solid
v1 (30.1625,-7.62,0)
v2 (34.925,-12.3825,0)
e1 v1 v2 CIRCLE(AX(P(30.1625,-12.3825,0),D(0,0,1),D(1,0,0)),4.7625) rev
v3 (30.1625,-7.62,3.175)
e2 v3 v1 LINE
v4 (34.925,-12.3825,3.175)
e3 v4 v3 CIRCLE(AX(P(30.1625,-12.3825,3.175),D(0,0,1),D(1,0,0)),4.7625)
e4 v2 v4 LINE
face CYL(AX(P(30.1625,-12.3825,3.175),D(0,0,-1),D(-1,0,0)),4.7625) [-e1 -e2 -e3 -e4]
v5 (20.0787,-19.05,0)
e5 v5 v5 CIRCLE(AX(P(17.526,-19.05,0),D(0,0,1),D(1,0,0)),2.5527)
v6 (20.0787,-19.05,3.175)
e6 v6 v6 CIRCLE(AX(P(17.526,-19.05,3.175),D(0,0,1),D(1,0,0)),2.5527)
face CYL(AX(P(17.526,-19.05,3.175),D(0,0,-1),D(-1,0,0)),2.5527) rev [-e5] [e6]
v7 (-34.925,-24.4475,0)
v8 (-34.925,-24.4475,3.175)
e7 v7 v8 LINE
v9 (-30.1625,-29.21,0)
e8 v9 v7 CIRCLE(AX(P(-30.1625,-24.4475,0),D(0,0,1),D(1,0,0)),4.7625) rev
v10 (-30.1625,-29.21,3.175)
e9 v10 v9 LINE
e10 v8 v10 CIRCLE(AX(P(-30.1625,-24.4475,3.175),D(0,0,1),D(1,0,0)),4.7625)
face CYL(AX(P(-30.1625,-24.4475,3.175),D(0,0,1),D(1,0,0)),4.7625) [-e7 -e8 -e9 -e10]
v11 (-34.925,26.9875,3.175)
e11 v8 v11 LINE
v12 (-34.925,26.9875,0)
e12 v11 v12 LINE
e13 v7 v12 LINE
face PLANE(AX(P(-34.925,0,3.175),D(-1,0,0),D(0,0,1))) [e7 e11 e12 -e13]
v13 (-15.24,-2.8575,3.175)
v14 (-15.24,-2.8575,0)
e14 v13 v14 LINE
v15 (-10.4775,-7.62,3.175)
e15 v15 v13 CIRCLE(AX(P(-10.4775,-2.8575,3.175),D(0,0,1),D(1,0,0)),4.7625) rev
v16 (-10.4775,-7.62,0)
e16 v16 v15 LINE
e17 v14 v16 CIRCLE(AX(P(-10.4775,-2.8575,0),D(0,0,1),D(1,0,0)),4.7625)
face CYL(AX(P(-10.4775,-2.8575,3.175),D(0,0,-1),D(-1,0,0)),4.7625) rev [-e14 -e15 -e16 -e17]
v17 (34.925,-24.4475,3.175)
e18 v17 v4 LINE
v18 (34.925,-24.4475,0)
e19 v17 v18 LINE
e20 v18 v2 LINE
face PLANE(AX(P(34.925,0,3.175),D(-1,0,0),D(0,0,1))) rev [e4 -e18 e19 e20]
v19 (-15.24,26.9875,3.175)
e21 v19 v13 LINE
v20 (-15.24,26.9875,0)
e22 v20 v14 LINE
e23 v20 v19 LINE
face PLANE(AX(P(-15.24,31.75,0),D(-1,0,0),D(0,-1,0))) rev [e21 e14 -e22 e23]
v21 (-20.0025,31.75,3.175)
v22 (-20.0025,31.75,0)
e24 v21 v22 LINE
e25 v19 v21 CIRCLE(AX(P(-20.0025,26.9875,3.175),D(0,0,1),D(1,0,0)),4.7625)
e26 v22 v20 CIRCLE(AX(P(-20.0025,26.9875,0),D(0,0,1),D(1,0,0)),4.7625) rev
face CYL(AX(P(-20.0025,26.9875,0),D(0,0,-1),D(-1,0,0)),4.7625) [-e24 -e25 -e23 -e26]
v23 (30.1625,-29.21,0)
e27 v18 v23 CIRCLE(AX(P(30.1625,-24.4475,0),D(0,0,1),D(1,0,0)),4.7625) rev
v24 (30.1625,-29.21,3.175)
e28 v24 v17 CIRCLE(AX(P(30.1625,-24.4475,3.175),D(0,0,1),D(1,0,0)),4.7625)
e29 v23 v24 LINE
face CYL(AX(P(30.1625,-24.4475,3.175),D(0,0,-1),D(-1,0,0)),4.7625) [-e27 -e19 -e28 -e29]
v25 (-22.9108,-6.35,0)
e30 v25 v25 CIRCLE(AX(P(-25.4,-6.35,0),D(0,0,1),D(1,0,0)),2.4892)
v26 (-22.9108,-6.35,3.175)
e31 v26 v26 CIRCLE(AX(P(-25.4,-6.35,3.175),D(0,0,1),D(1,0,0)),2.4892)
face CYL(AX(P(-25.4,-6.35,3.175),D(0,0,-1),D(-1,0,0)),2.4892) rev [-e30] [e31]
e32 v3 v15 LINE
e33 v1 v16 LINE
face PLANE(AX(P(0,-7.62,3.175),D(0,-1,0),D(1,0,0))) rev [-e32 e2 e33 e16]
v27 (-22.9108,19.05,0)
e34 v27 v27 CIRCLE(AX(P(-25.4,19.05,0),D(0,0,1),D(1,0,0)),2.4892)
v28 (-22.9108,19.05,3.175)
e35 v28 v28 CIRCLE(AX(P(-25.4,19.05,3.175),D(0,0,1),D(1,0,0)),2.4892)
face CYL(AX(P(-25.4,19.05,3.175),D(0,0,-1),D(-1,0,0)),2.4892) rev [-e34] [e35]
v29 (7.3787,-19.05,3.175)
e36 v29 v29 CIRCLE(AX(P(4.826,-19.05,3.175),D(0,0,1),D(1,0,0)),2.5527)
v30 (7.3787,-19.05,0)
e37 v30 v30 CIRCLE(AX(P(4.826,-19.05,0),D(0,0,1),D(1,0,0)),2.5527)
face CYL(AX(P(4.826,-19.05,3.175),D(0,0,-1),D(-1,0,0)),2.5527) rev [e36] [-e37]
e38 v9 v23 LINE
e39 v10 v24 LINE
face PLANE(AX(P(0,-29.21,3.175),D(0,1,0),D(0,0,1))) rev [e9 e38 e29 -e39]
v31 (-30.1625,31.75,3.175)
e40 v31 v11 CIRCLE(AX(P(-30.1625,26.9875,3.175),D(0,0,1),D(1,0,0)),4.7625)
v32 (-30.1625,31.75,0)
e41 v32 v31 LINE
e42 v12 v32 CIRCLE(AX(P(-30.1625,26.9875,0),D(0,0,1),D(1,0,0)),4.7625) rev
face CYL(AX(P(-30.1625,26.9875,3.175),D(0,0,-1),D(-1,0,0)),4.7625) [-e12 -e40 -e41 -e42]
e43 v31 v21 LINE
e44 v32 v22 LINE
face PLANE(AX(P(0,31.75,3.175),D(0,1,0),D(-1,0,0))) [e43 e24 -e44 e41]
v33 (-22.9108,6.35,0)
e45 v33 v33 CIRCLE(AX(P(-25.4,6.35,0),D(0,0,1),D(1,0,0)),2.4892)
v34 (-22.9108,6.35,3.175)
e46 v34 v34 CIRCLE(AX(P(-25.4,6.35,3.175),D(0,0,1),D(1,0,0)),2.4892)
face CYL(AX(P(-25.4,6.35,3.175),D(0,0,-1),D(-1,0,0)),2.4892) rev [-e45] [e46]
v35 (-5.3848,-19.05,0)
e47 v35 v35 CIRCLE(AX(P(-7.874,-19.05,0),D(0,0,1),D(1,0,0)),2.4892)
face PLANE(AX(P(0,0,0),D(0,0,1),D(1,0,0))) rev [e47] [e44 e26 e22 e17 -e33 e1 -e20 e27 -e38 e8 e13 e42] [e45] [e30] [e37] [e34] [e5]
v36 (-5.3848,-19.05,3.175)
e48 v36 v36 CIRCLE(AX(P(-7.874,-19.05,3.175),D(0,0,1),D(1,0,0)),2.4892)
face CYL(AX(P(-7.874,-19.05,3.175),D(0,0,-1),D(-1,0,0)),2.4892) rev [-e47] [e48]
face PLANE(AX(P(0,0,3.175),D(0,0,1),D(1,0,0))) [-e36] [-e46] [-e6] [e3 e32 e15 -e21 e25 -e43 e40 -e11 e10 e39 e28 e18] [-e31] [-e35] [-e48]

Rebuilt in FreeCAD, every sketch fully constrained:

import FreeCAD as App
import Part
import Sketcher

V = App.Vector
Q = App.Units.Quantity


def edges_at(feature, points):
    """Names of the edges that pass closest to the given points."""
    edges = feature.Shape.Edges
    near = lambda p: min(range(len(edges)), key=lambda i: edges[i].distToShape(Part.Vertex(*p))[0])
    return sorted({f"Edge{near(p) + 1}" for p in points})

doc = App.newDocument("Part")
body = doc.addObject("PartDesign::Body", "Body")

# Sketch on XY plane
sketch1 = body.newObject("Sketcher::SketchObject", "Sketch")
sketch1.AttachmentSupport = (doc.getObject("XY_Plane"), [""])
sketch1.MapMode = "FlatFace"
sketch1.addGeometry(Part.LineSegment(V(-34.925, 31.75, 0), V(-34.925, -29.21, 0)), False)
sketch1.addGeometry(Part.LineSegment(V(-34.925, -29.21, 0), V(34.925, -29.21, 0)), False)
sketch1.addGeometry(Part.LineSegment(V(34.925, -29.21, 0), V(34.925, -7.62, 0)), False)
sketch1.addGeometry(Part.LineSegment(V(34.925, -7.62, 0), V(-10.795, -7.62, 0)), False)
sketch1.addGeometry(Part.LineSegment(V(-10.795, -7.62, 0), V(-10.795, 31.75, 0)), False)
sketch1.addGeometry(Part.LineSegment(V(-10.795, 31.75, 0), V(-34.925, 31.75, 0)), False)
sketch1.addGeometry(Part.Circle(V(-7.874, -19.05, 0), V(0, 0, 1), 2.4892), False)
sketch1.addGeometry(Part.Circle(V(-25.4, -6.35, 0), V(0, 0, 1), 2.4892), False)
sketch1.addGeometry(Part.Circle(V(4.826, -19.05, 0), V(0, 0, 1), 2.5527), False)
sketch1.addGeometry(Part.Circle(V(17.526, -19.05, 0), V(0, 0, 1), 2.5527), False)
sketch1.addGeometry(Part.Circle(V(-25.4, 6.35, 0), V(0, 0, 1), 2.4892), False)
sketch1.addGeometry(Part.Circle(V(-25.4, 19.05, 0), V(0, 0, 1), 2.4892), False)
sketch1.addConstraint(Sketcher.Constraint("Coincident", 0, 2, 1, 1))
sketch1.addConstraint(Sketcher.Constraint("Coincident", 1, 2, 2, 1))
sketch1.addConstraint(Sketcher.Constraint("Coincident", 2, 2, 3, 1))
sketch1.addConstraint(Sketcher.Constraint("Coincident", 3, 2, 4, 1))
sketch1.addConstraint(Sketcher.Constraint("Coincident", 4, 2, 5, 1))
sketch1.addConstraint(Sketcher.Constraint("Coincident", 5, 2, 0, 1))
sketch1.addConstraint(Sketcher.Constraint("Vertical", 0))
sketch1.addConstraint(Sketcher.Constraint("Horizontal", 1))
sketch1.addConstraint(Sketcher.Constraint("Vertical", 2))
sketch1.addConstraint(Sketcher.Constraint("Horizontal", 3))
sketch1.addConstraint(Sketcher.Constraint("Vertical", 4))
sketch1.addConstraint(Sketcher.Constraint("Horizontal", 5))
sketch1.addConstraint(Sketcher.Constraint("Equal", 6, 7))
sketch1.addConstraint(Sketcher.Constraint("Equal", 8, 9))
sketch1.addConstraint(Sketcher.Constraint("Equal", 7, 10))
sketch1.addConstraint(Sketcher.Constraint("Equal", 10, 11))
sketch1.addConstraint(Sketcher.Constraint("Symmetric", 7, 3, 10, 3, -1))
sketch1.addConstraint(Sketcher.Constraint("Horizontal", 6, 3, 8, 3))
sketch1.addConstraint(Sketcher.Constraint("Horizontal", 8, 3, 9, 3))
sketch1.addConstraint(Sketcher.Constraint("Vertical", 10, 3, 11, 3))
sketch1.addConstraint(Sketcher.Constraint("Diameter", 6, Q("0.196 in")))
sketch1.addConstraint(Sketcher.Constraint("Diameter", 8, Q("0.201 in")))
sketch1.addConstraint(Sketcher.Constraint("DistanceX", 3, 2, 3, 1, Q("1.8 in")))
sketch1.addConstraint(Sketcher.Constraint("DistanceY", 0, 2, 0, 1, Q("2.4 in")))
sketch1.addConstraint(Sketcher.Constraint("DistanceX", 7, 3, -1, 1, Q("1 in")))
sketch1.addConstraint(Sketcher.Constraint("DistanceX", 6, 3, 9, 3, Q("1 in")))
sketch1.addConstraint(Sketcher.Constraint("DistanceY", 6, 3, 10, 3, Q("1 in")))
sketch1.addConstraint(Sketcher.Constraint("DistanceY", 7, 3, 11, 3, Q("1 in")))
sketch1.addConstraint(Sketcher.Constraint("DistanceY", 10, 3, 4, 2, Q("1 in")))
sketch1.addConstraint(Sketcher.Constraint("DistanceX", 1, 1, 1, 2, Q("2.75 in")))
sketch1.addConstraint(Sketcher.Constraint("DistanceY", 2, 1, 2, 2, Q("0.85 in")))
sketch1.addConstraint(Sketcher.Constraint("DistanceY", 2, 2, -1, 1, Q("0.3 in")))
sketch1.addConstraint(Sketcher.Constraint("DistanceX", 6, 3, 8, 3, Q("0.5 in")))
sketch1.addConstraint(Sketcher.Constraint("DistanceX", 6, 3, -1, 1, Q("0.31 in")))
sketch1.addConstraint(Sketcher.Constraint("DistanceX", 0, 2, -1, 1, Q("1.375 in")))
pad1 = body.newObject("PartDesign::Pad", "Pad")
pad1.Profile = sketch1
pad1.Length = Q("0.125 in")

# Sketch on XY plane
sketch2 = body.newObject("Sketcher::SketchObject", "Sketch001")
sketch2.AttachmentSupport = (doc.getObject("XY_Plane"), [""])
sketch2.MapMode = "FlatFace"
sketch2.AttachmentOffset = App.Placement(V(0, 0, 0.125 * 25.4), App.Rotation())
sketch2.addGeometry(Part.LineSegment(V(-15.24, 31.75, 0), V(-15.24, -7.62, 0)), False)
sketch2.addGeometry(Part.LineSegment(V(-15.24, -7.62, 0), V(-10.795, -7.62, 0)), False)
sketch2.addGeometry(Part.LineSegment(V(-10.795, -7.62, 0), V(-10.795, 31.75, 0)), False)
sketch2.addGeometry(Part.LineSegment(V(-10.795, 31.75, 0), V(-15.24, 31.75, 0)), False)
sketch2.addConstraint(Sketcher.Constraint("Coincident", 0, 2, 1, 1))
sketch2.addConstraint(Sketcher.Constraint("Coincident", 1, 2, 2, 1))
sketch2.addConstraint(Sketcher.Constraint("Coincident", 2, 2, 3, 1))
sketch2.addConstraint(Sketcher.Constraint("Coincident", 3, 2, 0, 1))
sketch2.addConstraint(Sketcher.Constraint("Vertical", 0))
sketch2.addConstraint(Sketcher.Constraint("Horizontal", 1))
sketch2.addConstraint(Sketcher.Constraint("Vertical", 2))
sketch2.addConstraint(Sketcher.Constraint("Horizontal", 3))
sketch2.addConstraint(Sketcher.Constraint("DistanceY", 0, 2, 0, 1, Q("1.55 in")))
sketch2.addConstraint(Sketcher.Constraint("DistanceX", 0, 2, -1, 1, Q("0.6 in")))
sketch2.addConstraint(Sketcher.Constraint("DistanceY", 0, 2, -1, 1, Q("0.3 in")))
sketch2.addConstraint(Sketcher.Constraint("DistanceX", 1, 1, 1, 2, Q("0.175 in")))
pocket1 = body.newObject("PartDesign::Pocket", "Pocket")
pocket1.Profile = sketch2
pocket1.Type = "ThroughAll"
doc.recompute()

fillet = body.newObject("PartDesign::Fillet", "Fillet")
fillet.Base = (pocket1, edges_at(pocket1, [
    (-34.925, 31.75, 1.587),
    (34.925, -7.62, 1.587),
    (34.925, -29.21, 1.587),
    (-34.925, -29.21, 1.587),
    (-15.24, -7.62, 1.587),
    (-15.24, 31.75, 1.587),
]))
fillet.Radius = Q("0.1875 in")

doc.recompute()
